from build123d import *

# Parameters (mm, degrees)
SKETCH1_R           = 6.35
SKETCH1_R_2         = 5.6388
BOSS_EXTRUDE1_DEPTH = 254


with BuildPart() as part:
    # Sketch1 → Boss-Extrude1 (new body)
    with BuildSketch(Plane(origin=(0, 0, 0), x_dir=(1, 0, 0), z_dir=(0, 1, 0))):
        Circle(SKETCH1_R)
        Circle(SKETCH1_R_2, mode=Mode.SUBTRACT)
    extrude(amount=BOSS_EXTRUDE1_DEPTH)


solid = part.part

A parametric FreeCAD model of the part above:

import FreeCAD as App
import Part
import Sketcher
from FreeCAD import Vector
Q = App.Units.Quantity

doc = App.newDocument("Part")
body = doc.addObject("PartDesign::Body", "Body")

sketch1 = body.newObject("Sketcher::SketchObject", "Sketch")
sketch1.AttachmentSupport = (doc.getObject("XZ_Plane"), [""])
sketch1.MapMode = "FlatFace"
sketch1.addGeometry(Part.Circle(Vector(0, 0, 0), Vector(0, 0, 1), 6), False)
sketch1.addGeometry(Part.Circle(Vector(0, 0, 0), Vector(0, 0, 1), 6), False)
sketch1.addConstraint(Sketcher.Constraint("Coincident", 0, 3, -1, 1))
sketch1.addConstraint(Sketcher.Constraint("Coincident", 1, 3, -1, 1))
sketch1.addConstraint(Sketcher.Constraint("Diameter", 0, Q("0.5 in")))
sketch1.addConstraint(Sketcher.Constraint("Diameter", 1, Q("0.444 in")))
pad1 = body.newObject("PartDesign::Pad", "Pad")
pad1.Profile = sketch1
pad1.Length = Q("10 in")
pad1.Reversed = True

doc.recompute()
